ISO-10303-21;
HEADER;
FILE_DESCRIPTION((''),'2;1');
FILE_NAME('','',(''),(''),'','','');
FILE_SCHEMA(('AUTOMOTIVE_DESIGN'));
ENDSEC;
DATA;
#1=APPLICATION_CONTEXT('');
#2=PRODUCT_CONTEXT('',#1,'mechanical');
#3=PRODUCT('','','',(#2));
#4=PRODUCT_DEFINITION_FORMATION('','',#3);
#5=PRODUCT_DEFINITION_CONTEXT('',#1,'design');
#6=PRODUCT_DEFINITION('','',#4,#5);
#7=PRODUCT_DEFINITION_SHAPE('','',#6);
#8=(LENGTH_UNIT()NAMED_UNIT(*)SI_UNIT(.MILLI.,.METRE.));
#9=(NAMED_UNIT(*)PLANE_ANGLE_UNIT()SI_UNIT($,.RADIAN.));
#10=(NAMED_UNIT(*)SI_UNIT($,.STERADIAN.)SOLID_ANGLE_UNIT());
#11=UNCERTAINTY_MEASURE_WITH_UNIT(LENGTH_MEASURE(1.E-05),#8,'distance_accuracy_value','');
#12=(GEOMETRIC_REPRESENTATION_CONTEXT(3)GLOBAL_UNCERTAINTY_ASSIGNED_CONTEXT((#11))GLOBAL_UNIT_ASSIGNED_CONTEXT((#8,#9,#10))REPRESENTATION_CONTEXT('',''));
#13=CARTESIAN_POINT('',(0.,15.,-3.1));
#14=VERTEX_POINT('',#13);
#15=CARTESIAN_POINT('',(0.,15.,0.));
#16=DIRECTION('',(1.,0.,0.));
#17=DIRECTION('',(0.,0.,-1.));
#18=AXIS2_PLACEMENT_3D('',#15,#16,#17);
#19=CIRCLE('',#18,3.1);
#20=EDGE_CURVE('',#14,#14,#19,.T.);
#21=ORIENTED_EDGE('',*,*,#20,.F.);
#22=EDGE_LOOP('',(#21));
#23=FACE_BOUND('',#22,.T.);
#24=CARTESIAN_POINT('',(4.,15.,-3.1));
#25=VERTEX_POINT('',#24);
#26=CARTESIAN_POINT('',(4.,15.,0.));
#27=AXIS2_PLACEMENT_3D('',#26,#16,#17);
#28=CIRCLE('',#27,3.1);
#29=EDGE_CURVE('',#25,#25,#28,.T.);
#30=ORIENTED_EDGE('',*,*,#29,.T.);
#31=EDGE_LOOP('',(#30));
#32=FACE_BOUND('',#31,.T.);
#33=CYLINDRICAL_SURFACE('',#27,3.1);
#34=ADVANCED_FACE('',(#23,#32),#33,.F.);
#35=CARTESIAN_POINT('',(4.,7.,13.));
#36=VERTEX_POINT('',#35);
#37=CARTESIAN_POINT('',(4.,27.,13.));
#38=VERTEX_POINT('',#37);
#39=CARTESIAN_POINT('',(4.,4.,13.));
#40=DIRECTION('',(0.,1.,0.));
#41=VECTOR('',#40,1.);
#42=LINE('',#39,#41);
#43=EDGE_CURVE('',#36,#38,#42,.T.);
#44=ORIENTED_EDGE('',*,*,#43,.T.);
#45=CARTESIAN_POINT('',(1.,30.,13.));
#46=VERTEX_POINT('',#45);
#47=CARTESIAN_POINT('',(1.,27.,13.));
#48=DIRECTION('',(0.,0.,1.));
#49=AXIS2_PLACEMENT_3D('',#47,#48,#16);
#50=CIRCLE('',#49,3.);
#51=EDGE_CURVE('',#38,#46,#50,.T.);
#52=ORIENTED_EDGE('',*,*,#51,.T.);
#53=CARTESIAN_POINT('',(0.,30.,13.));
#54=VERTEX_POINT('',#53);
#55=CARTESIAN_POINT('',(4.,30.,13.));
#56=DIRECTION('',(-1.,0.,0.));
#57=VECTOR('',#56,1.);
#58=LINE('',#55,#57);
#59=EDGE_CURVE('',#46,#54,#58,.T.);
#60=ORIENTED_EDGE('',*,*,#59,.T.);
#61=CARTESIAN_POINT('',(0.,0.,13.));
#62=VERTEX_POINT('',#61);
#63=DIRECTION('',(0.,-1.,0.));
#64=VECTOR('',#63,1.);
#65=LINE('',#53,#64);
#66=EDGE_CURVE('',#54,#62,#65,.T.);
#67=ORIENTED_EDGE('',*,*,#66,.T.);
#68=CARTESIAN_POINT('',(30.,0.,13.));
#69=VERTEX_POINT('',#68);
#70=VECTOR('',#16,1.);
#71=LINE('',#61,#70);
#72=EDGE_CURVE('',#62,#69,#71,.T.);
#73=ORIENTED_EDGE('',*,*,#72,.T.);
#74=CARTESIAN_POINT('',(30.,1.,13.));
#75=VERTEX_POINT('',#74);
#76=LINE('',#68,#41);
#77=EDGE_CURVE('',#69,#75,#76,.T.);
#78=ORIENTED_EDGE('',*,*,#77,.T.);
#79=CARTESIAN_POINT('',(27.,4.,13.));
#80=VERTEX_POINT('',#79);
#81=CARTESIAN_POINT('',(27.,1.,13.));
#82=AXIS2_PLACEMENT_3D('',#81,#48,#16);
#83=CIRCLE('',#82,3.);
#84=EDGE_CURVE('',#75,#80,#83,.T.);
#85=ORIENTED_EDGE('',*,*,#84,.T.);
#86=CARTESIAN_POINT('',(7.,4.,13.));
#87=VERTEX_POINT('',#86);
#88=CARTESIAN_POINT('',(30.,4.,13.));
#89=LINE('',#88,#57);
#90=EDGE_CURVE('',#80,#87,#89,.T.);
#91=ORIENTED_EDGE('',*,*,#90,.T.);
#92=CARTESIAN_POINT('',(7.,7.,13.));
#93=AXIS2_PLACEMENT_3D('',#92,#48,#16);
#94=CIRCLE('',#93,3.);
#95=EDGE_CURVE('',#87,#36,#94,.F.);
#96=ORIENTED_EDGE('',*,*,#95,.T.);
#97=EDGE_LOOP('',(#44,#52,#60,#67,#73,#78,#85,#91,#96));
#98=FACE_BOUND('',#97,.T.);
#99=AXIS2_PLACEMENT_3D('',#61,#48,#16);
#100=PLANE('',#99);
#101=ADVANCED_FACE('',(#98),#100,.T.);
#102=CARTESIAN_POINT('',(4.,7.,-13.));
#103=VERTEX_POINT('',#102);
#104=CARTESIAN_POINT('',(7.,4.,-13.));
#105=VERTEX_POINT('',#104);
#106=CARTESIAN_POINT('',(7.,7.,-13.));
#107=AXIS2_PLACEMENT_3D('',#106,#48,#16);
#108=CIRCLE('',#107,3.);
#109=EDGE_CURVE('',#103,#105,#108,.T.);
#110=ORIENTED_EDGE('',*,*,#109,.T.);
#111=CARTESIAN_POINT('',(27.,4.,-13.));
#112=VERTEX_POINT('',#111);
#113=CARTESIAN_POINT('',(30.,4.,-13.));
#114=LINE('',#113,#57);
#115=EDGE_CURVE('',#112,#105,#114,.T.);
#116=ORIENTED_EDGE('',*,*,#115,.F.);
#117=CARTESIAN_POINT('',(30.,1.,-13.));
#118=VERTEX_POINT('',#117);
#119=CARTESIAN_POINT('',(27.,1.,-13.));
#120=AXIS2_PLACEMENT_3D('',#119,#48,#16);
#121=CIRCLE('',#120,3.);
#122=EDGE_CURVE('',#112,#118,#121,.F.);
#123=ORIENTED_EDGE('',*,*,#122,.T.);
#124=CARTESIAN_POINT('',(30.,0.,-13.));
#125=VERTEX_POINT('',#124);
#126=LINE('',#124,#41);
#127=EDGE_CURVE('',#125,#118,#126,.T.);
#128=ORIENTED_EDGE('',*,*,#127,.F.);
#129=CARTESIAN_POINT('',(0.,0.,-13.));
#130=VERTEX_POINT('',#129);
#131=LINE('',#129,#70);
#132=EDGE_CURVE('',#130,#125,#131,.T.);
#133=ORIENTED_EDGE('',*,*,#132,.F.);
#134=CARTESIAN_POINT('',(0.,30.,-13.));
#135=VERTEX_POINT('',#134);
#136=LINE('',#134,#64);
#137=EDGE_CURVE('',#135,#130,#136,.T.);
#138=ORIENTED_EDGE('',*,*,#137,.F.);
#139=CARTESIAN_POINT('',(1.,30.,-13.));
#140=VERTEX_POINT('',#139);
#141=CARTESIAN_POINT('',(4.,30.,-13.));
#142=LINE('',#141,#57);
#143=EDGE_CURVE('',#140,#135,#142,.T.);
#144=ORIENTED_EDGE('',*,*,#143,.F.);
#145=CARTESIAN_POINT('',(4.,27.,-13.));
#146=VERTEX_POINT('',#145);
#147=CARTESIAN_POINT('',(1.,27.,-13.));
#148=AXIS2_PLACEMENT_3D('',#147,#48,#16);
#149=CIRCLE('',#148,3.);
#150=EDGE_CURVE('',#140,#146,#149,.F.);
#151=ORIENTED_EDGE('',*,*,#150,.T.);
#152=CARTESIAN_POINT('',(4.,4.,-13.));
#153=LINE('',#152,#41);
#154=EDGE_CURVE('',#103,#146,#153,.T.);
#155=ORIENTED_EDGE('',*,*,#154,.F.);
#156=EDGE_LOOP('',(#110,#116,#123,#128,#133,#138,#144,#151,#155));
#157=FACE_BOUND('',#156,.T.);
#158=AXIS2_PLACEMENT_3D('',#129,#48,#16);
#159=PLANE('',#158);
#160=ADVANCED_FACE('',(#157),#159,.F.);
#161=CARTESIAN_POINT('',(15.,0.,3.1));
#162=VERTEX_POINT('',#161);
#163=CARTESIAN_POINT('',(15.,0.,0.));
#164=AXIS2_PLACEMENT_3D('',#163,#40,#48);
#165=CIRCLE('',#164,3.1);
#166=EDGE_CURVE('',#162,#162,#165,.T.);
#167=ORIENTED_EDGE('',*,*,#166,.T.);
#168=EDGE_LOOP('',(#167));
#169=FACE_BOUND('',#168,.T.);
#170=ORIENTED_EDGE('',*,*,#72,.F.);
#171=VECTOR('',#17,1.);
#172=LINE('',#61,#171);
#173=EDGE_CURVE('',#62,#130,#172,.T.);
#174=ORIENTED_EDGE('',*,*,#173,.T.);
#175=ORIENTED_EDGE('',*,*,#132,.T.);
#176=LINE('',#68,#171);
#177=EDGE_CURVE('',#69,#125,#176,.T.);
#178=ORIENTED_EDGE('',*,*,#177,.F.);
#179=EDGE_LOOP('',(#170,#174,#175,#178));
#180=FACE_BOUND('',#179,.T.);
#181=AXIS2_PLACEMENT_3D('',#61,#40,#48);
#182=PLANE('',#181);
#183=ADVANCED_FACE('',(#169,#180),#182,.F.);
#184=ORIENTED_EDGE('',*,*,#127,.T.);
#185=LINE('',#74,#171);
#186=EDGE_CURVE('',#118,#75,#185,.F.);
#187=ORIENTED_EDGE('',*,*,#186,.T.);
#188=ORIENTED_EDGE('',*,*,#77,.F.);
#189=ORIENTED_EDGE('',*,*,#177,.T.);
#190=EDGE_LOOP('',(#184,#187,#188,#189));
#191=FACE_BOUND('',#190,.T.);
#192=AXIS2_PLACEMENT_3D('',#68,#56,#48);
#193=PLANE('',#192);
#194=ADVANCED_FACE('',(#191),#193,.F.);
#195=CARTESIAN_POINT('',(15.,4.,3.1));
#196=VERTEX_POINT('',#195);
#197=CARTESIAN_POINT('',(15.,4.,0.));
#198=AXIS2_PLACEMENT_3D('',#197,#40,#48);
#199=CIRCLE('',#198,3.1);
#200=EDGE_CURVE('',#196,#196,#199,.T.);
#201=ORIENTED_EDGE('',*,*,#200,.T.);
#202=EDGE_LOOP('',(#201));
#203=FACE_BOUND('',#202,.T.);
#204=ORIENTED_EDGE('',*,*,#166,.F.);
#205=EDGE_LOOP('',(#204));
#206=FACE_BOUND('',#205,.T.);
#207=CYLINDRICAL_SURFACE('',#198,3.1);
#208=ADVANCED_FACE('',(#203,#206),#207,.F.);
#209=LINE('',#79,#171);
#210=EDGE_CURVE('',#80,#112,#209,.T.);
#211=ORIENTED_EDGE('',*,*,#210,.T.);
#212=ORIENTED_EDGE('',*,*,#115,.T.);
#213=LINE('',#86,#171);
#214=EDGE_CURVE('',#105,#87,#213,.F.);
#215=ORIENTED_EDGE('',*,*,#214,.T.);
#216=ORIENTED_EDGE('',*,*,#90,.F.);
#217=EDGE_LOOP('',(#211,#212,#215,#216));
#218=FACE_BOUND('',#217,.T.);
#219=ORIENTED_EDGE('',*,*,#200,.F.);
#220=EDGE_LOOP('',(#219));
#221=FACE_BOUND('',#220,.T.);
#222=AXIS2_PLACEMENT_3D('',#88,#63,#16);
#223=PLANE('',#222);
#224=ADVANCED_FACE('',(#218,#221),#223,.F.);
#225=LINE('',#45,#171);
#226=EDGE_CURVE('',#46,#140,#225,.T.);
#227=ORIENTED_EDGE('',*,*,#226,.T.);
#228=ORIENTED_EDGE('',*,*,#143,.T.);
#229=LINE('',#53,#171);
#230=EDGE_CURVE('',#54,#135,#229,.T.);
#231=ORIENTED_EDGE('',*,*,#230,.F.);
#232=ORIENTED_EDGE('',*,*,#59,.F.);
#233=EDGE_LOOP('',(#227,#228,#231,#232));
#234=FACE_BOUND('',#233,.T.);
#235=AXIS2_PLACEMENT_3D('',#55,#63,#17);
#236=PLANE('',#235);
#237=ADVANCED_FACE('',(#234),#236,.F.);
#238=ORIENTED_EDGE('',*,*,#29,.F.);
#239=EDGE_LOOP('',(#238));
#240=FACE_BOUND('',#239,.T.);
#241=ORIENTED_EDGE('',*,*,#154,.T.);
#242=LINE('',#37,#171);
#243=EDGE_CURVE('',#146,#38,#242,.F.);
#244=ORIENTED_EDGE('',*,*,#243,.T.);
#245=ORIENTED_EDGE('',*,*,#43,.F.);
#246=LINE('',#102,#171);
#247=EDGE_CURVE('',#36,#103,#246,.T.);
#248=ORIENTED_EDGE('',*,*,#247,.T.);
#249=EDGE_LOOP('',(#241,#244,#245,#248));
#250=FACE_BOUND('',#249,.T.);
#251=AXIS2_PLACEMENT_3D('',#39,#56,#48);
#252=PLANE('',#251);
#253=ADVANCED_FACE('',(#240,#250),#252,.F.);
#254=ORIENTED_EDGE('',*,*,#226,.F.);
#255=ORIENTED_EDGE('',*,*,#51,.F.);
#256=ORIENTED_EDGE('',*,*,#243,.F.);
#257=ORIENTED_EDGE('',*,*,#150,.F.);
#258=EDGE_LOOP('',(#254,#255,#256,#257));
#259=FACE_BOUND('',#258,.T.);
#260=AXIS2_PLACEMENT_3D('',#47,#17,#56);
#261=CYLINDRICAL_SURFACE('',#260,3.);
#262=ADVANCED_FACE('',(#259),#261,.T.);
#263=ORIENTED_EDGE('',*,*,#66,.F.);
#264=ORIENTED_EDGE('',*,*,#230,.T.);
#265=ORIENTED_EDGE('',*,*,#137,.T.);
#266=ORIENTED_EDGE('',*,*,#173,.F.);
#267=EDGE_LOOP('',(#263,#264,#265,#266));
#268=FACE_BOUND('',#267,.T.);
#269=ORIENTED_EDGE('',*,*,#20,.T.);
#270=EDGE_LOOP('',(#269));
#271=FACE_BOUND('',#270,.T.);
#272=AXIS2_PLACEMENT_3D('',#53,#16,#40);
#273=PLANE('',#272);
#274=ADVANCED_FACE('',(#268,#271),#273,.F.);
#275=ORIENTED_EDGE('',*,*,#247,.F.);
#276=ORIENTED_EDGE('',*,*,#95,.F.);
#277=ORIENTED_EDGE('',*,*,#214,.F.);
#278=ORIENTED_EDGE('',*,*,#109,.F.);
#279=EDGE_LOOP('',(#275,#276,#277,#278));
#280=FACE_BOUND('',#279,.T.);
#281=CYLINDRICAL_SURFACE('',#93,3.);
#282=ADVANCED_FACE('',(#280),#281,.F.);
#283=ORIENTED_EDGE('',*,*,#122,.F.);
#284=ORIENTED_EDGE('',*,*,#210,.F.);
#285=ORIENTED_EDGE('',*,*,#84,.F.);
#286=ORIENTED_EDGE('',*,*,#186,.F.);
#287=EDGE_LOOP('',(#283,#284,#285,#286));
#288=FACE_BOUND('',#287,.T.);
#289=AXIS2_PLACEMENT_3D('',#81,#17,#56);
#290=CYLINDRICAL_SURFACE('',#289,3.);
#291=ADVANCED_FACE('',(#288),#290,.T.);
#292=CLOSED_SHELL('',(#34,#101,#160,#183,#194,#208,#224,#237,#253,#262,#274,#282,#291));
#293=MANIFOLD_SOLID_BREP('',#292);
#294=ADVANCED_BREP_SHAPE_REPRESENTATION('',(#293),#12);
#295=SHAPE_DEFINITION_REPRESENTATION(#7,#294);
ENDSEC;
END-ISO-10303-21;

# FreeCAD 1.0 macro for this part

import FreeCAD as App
import Part
import Sketcher
Q = App.Units.Quantity


def edges_at(feature, points):
    """Names of the edges that pass closest to the given points."""
    edges = feature.Shape.Edges
    near = lambda p: min(range(len(edges)), key=lambda i: edges[i].distToShape(Part.Vertex(*p))[0])
    return sorted({f"Edge{near(p) + 1}" for p in points})


def add_polygon(sketch, points):
    """Adds a closed chain of lines whose ends are joined by coincident constraints."""
    first, n = sketch.GeometryCount, len(points)
    for a, b in zip(points, points[1:] + points[:1]):
        sketch.addGeometry(Part.LineSegment(App.Vector(*a, 0), App.Vector(*b, 0)), False)
    for i in range(n):
        sketch.addConstraint(Sketcher.Constraint("Coincident", first + i, 2, first + (i + 1) % n, 1))

doc = App.newDocument("Part")
body = doc.addObject("PartDesign::Body", "Body")

# Sketch on XY plane
sketch1 = body.newObject("Sketcher::SketchObject", "Sketch")
sketch1.AttachmentSupport = (doc.getObject("XY_Plane"), [""])
sketch1.MapMode = "FlatFace"
add_polygon(sketch1, [(0, 0), (30, 0), (30, 4), (4, 4), (4, 30), (0, 30)])  # lines 0-5
sketch1.addConstraint([
    Sketcher.Constraint("Horizontal", 0),
    Sketcher.Constraint("Vertical", 1),
    Sketcher.Constraint("Horizontal", 2),
    Sketcher.Constraint("Vertical", 3),
    Sketcher.Constraint("Horizontal", 4),
    Sketcher.Constraint("Vertical", 5),
    Sketcher.Constraint("Coincident", 5, 2, -1, 1),
    Sketcher.Constraint("Equal", 4, 1),
    Sketcher.Constraint("Equal", 2, 3),
    Sketcher.Constraint("DistanceX", 0, 1, 0, 2, Q("30 mm")),
    Sketcher.Constraint("DistanceX", 2, 2, 2, 1, Q("26 mm")),
])
pad1 = body.newObject("PartDesign::Pad", "Pad")
pad1.Profile = sketch1
pad1.Length = 26
pad1.Midplane = True

# Sketch on XZ plane
sketch2 = body.newObject("Sketcher::SketchObject", "Sketch001")
sketch2.AttachmentSupport = (doc.getObject("XZ_Plane"), [""])
sketch2.MapMode = "FlatFace"
sketch2.AttachmentOffset = App.Placement(App.Vector(0, 0, -4), App.Rotation())
sketch2.addGeometry(Part.Circle(App.Vector(15, 0, 0), App.Vector(0, 0, 1), 3.1), False)
sketch2.addConstraint([
    Sketcher.Constraint("PointOnObject", 0, 3, -1),
    Sketcher.Constraint("Diameter", 0, Q("6.2 mm")),
    Sketcher.Constraint("DistanceX", -1, 1, 0, 3, Q("15 mm")),
])
doc.recompute()
hole = body.newObject("PartDesign::Hole", "Hole")
hole.Profile = sketch2
hole.ThreadType = "None"
hole.Diameter = 6.2
hole.DepthType = "ThroughAll"
hole.Reversed = True

# Sketch on YZ plane
sketch3 = body.newObject("Sketcher::SketchObject", "Sketch002")
sketch3.AttachmentSupport = (doc.getObject("YZ_Plane"), [""])
sketch3.MapMode = "FlatFace"
sketch3.AttachmentOffset = App.Placement(App.Vector(0, 0, 4), App.Rotation())
sketch3.addGeometry(Part.Circle(App.Vector(15, 0, 0), App.Vector(0, 0, 1), 3.1), False)
sketch3.addConstraint([
    Sketcher.Constraint("PointOnObject", 0, 3, -1),
    Sketcher.Constraint("Diameter", 0, Q("6.2 mm")),
    Sketcher.Constraint("DistanceX", -1, 1, 0, 3, Q("15 mm")),
])
doc.recompute()
hole2 = body.newObject("PartDesign::Hole", "Hole001")
hole2.Profile = sketch3
hole2.ThreadType = "None"
hole2.Diameter = 6.2
hole2.DepthType = "ThroughAll"
doc.recompute()

fillet = body.newObject("PartDesign::Fillet", "Fillet")
fillet.Base = (hole2, edges_at(hole2, [(4, 30, 0), (4, 4, 0), (30, 4, 0)]))
fillet.Radius = 3

doc.recompute()
